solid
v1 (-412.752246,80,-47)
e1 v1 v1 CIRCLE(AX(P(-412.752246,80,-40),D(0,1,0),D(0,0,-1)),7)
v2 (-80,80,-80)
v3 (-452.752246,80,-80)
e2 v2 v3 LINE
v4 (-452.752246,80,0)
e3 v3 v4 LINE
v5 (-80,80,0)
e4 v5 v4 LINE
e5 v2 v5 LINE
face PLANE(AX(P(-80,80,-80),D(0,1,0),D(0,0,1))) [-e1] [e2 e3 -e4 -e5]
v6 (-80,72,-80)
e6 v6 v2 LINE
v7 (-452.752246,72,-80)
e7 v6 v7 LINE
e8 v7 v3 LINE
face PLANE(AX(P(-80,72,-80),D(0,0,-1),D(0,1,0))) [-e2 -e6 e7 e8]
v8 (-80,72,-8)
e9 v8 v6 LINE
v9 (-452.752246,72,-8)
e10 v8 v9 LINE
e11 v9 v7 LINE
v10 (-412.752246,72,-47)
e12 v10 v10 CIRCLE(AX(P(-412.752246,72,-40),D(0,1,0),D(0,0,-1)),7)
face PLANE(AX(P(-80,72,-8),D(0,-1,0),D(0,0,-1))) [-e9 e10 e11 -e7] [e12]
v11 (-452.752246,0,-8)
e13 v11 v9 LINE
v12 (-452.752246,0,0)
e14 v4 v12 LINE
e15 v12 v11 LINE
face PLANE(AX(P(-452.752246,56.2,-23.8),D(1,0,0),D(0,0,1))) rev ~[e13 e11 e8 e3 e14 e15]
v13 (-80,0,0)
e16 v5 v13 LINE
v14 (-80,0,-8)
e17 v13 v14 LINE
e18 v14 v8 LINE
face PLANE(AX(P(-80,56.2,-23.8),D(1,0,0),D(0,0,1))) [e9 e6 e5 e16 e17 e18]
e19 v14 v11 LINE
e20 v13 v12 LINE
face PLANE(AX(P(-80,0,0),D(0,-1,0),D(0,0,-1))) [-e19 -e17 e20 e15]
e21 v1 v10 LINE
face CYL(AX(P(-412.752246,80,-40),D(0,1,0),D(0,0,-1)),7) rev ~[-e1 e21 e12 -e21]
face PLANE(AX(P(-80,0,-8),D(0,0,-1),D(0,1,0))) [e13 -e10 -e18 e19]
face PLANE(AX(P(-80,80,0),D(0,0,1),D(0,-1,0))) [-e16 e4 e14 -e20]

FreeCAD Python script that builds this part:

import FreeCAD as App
import Part
import Sketcher
from FreeCAD import Vector
Q = App.Units.Quantity

doc = App.newDocument("Part")
params = doc.addObject("Spreadsheet::Sheet", "Params")
for row, (alias, value) in enumerate([
    ("sketch1_width", "80 mm"),
    ("sketch1_width2", "72 mm"),
    ("pad1_length", "372.752246 mm"),
    ("sketch2_diameter", "14 mm"),
], start=1):
    params.set(f"A{row}", alias)
    params.set(f"B{row}", "=" + value)
    params.setAlias(f"B{row}", alias)

body = doc.addObject("PartDesign::Body", "Body")

# Sketch on YZ plane
sketch1 = body.newObject("Sketcher::SketchObject", "Sketch")
sketch1.AttachmentSupport = (doc.getObject("YZ_Plane"), [""])
sketch1.MapMode = "FlatFace"
sketch1.addGeometry(Part.LineSegment(Vector(0, 80, 0), Vector(0, 0, 0)), False)
sketch1.addGeometry(Part.LineSegment(Vector(0, 0, 0), Vector(80, 0, 0)), False)
sketch1.addGeometry(Part.LineSegment(Vector(80, 0, 0), Vector(80, 8, 0)), False)
sketch1.addGeometry(Part.LineSegment(Vector(80, 8, 0), Vector(8, 8, 0)), False)
sketch1.addGeometry(Part.LineSegment(Vector(8, 8, 0), Vector(8, 80, 0)), False)
sketch1.addGeometry(Part.LineSegment(Vector(8, 80, 0), Vector(0, 80, 0)), False)
sketch1.addConstraint(Sketcher.Constraint("Coincident", 0, 2, 1, 1))
sketch1.addConstraint(Sketcher.Constraint("Coincident", 1, 2, 2, 1))
sketch1.addConstraint(Sketcher.Constraint("Coincident", 2, 2, 3, 1))
sketch1.addConstraint(Sketcher.Constraint("Coincident", 3, 2, 4, 1))
sketch1.addConstraint(Sketcher.Constraint("Coincident", 4, 2, 5, 1))
sketch1.addConstraint(Sketcher.Constraint("Coincident", 5, 2, 0, 1))
sketch1.addConstraint(Sketcher.Constraint("Vertical", 0))
sketch1.addConstraint(Sketcher.Constraint("Horizontal", 1))
sketch1.addConstraint(Sketcher.Constraint("Vertical", 2))
sketch1.addConstraint(Sketcher.Constraint("Horizontal", 3))
sketch1.addConstraint(Sketcher.Constraint("Vertical", 4))
sketch1.addConstraint(Sketcher.Constraint("Horizontal", 5))
sketch1.addConstraint(Sketcher.Constraint("Coincident", 0, 2, -1, 1))
sketch1.addConstraint(Sketcher.Constraint("Equal", 1, 0))
sketch1.addConstraint(Sketcher.Constraint("Equal", 5, 2))
sketch1.addConstraint(Sketcher.Constraint("DistanceX", 1, 1, 1, 2, Q("80 mm")))
sketch1.addConstraint(Sketcher.Constraint("DistanceX", 3, 2, 3, 1, Q("72 mm")))
sketch1.setExpression("Constraints[15]", "Params.sketch1_width")
sketch1.setExpression("Constraints[16]", "Params.sketch1_width2")
pad1 = body.newObject("PartDesign::Pad", "Pad")
pad1.Profile = sketch1
pad1.setExpression("Length", "Params.pad1_length")

# Sketch on XY plane
sketch2 = body.newObject("Sketcher::SketchObject", "Sketch001")
sketch2.AttachmentSupport = (doc.getObject("XY_Plane"), [""])
sketch2.MapMode = "FlatFace"
sketch2.addGeometry(Part.Circle(Vector(333, 40, 0), Vector(0, 0, 1), 7), False)
sketch2.addConstraint(Sketcher.Constraint("Diameter", 0, Q("14 mm")))
sketch2.addConstraint(Sketcher.Constraint("DistanceY", -1, 1, 0, 3, Q("40 mm")))
sketch2.addConstraint(Sketcher.Constraint("DistanceX", -1, 1, 0, 3, Q("332.752246 mm")))
sketch2.setExpression("Constraints[0]", "Params.sketch2_diameter")
pocket1 = body.newObject("PartDesign::Pocket", "Pocket")
pocket1.Profile = sketch2
pocket1.Type = "ThroughAll"
pocket1.Reversed = True
body2 = doc.addObject("PartDesign::Body", "Body001")
doc.recompute()

body.Placement = App.Placement(Vector(0, 0, 0), App.Rotation(Vector(1, 0, 0), 270))
boolean = body2.newObject("PartDesign::Boolean", "Boolean")
boolean.Type = "Fuse"
boolean.addObjects([body])
body3 = doc.addObject("PartDesign::Body", "Body002")
doc.recompute()

body2.Placement = App.Placement(Vector(-80, 80, 0), App.Rotation(Vector(0, 0, 1), 180))
boolean2 = body3.newObject("PartDesign::Boolean", "Boolean001")
boolean2.Type = "Fuse"
boolean2.addObjects([body2])

doc.recompute()
